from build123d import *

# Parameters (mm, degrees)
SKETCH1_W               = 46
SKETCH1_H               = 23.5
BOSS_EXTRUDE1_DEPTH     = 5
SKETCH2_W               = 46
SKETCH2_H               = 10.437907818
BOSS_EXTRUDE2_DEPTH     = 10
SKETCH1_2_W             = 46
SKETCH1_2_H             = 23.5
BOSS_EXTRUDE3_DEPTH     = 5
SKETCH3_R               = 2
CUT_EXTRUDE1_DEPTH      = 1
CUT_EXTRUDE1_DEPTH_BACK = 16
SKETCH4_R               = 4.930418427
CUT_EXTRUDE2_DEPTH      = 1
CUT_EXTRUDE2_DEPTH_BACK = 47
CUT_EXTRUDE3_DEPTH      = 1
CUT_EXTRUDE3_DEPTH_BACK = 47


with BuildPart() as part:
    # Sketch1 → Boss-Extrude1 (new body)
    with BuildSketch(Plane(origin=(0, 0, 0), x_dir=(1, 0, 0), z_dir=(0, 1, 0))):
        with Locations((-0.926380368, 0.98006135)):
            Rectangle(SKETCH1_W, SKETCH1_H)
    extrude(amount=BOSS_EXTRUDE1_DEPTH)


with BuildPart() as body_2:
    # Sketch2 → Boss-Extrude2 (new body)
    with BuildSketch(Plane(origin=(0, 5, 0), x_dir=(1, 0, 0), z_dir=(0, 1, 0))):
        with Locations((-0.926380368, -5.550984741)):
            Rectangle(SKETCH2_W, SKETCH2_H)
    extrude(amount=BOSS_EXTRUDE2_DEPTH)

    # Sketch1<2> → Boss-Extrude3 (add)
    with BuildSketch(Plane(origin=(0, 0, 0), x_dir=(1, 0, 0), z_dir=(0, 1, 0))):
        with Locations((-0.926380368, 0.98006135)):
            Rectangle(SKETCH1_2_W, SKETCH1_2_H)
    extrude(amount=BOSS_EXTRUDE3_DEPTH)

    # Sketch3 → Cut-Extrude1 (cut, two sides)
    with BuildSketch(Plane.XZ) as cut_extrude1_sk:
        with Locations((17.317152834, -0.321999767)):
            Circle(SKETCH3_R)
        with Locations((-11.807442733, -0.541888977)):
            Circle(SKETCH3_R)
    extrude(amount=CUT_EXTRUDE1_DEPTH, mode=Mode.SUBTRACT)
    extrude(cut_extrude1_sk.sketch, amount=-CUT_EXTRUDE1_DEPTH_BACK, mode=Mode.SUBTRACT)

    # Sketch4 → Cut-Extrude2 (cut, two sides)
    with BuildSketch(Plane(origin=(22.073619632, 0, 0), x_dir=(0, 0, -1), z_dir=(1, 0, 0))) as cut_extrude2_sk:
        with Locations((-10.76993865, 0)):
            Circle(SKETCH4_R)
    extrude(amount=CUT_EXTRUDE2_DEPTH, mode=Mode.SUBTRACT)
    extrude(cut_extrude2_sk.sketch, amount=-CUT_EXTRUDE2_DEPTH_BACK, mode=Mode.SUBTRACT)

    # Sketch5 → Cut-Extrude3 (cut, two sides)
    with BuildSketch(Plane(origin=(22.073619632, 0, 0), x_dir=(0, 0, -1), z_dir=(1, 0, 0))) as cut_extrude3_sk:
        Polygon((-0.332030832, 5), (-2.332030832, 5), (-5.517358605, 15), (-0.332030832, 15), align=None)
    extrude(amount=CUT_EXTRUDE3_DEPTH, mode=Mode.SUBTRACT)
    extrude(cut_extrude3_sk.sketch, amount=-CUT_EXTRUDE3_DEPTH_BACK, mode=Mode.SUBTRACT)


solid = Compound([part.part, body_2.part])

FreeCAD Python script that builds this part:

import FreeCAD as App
import Part
import Sketcher

doc = App.newDocument("Part")
body = doc.addObject("PartDesign::Body", "Body")

sketch1 = body.newObject("Sketcher::SketchObject", "Sketch")
sketch1.AttachmentSupport = (doc.getObject("XZ_Plane"), [""])
sketch1.MapMode = "FlatFace"
sketch1.addGeometry([
    Part.LineSegment(App.Vector(-24, -13, 0), App.Vector(-24, 11, 0)),
    Part.LineSegment(App.Vector(-24, 11, 0), App.Vector(22, 11, 0)),
    Part.LineSegment(App.Vector(22, 11, 0), App.Vector(22, -13, 0)),
    Part.LineSegment(App.Vector(22, -13, 0), App.Vector(-24, -13, 0)),
], False)
sketch1.addConstraint([
    Sketcher.Constraint("Coincident", 0, 2, 1, 1),
    Sketcher.Constraint("Coincident", 1, 2, 2, 1),
    Sketcher.Constraint("Coincident", 2, 2, 3, 1),
    Sketcher.Constraint("Coincident", 3, 2, 0, 1),
    Sketcher.Constraint("Vertical", 0),
    Sketcher.Constraint("Horizontal", 1),
    Sketcher.Constraint("Vertical", 2),
    Sketcher.Constraint("Horizontal", 3),
    Sketcher.Constraint("DistanceX", 1, 1, 1, 2, 46.0),
    Sketcher.Constraint("DistanceY", 0, 1, 0, 2, 23.5),
    Sketcher.Constraint("DistanceX", 0, 2, -1, 1, 23.92638),
    Sketcher.Constraint("DistanceY", -1, 1, 0, 2, 10.769939),
])
pad1 = body.newObject("PartDesign::Pad", "Pad")
pad1.Profile = sketch1
pad1.Length = 5
pad1.Reversed = True
body2 = doc.addObject("PartDesign::Body", "Body001")

sketch2 = body2.newObject("Sketcher::SketchObject", "Sketch001")
sketch2.AttachmentSupport = (doc.getObject("XZ_Plane001"), [""])
sketch2.MapMode = "FlatFace"
sketch2.AttachmentOffset = App.Placement(App.Vector(0, 0, -5), App.Rotation())
sketch2.addGeometry([
    Part.LineSegment(App.Vector(-24, 0, 0), App.Vector(-24, 11, 0)),
    Part.LineSegment(App.Vector(-24, 11, 0), App.Vector(22, 11, 0)),
    Part.LineSegment(App.Vector(22, 11, 0), App.Vector(22, 0, 0)),
    Part.LineSegment(App.Vector(22, 0, 0), App.Vector(-24, 0, 0)),
], False)
sketch2.addConstraint([
    Sketcher.Constraint("Coincident", 0, 2, 1, 1),
    Sketcher.Constraint("Coincident", 1, 2, 2, 1),
    Sketcher.Constraint("Coincident", 2, 2, 3, 1),
    Sketcher.Constraint("Coincident", 3, 2, 0, 1),
    Sketcher.Constraint("Vertical", 0),
    Sketcher.Constraint("Horizontal", 1),
    Sketcher.Constraint("Vertical", 2),
    Sketcher.Constraint("Horizontal", 3),
    Sketcher.Constraint("DistanceX", 1, 1, 1, 2, 46.0),
    Sketcher.Constraint("DistanceY", 0, 1, 0, 2, 10.437908),
    Sketcher.Constraint("DistanceX", 0, 2, -1, 1, 23.92638),
    Sketcher.Constraint("DistanceY", -1, 1, 0, 2, 10.769939),
])
pad2 = body2.newObject("PartDesign::Pad", "Pad001")
pad2.Profile = sketch2
pad2.Length = 10
pad2.Reversed = True

sketch3 = body2.newObject("Sketcher::SketchObject", "Sketch002")
sketch3.AttachmentSupport = (doc.getObject("XZ_Plane001"), [""])
sketch3.MapMode = "FlatFace"
sketch3.addGeometry([
    Part.LineSegment(App.Vector(-24, -13, 0), App.Vector(-24, 11, 0)),
    Part.LineSegment(App.Vector(-24, 11, 0), App.Vector(22, 11, 0)),
    Part.LineSegment(App.Vector(22, 11, 0), App.Vector(22, -13, 0)),
    Part.LineSegment(App.Vector(22, -13, 0), App.Vector(-24, -13, 0)),
], False)
sketch3.addConstraint([
    Sketcher.Constraint("Coincident", 0, 2, 1, 1),
    Sketcher.Constraint("Coincident", 1, 2, 2, 1),
    Sketcher.Constraint("Coincident", 2, 2, 3, 1),
    Sketcher.Constraint("Coincident", 3, 2, 0, 1),
    Sketcher.Constraint("Vertical", 0),
    Sketcher.Constraint("Horizontal", 1),
    Sketcher.Constraint("Vertical", 2),
    Sketcher.Constraint("Horizontal", 3),
    Sketcher.Constraint("DistanceX", 1, 1, 1, 2, 46.0),
    Sketcher.Constraint("DistanceY", 0, 1, 0, 2, 23.5),
    Sketcher.Constraint("DistanceX", 0, 2, -1, 1, 23.92638),
    Sketcher.Constraint("DistanceY", -1, 1, 0, 2, 10.769939),
])
pad3 = body2.newObject("PartDesign::Pad", "Pad002")
pad3.Profile = sketch3
pad3.Length = 5
pad3.Reversed = True

sketch4 = body2.newObject("Sketcher::SketchObject", "Sketch003")
sketch4.AttachmentSupport = (doc.getObject("XZ_Plane001"), [""])
sketch4.MapMode = "FlatFace"
sketch4.addGeometry([
    Part.Circle(App.Vector(17.3, -0.3, 0), App.Vector(0, 0, 1), 2),
    Part.Circle(App.Vector(-11.8, -0.5, 0), App.Vector(0, 0, 1), 2),
], False)
sketch4.addConstraint([
    Sketcher.Constraint("Equal", 0, 1),
    Sketcher.Constraint("Diameter", 0, 4.0),
    Sketcher.Constraint("DistanceY", 0, 3, -1, 1, 0.322),
    Sketcher.Constraint("DistanceY", 1, 3, -1, 1, 0.541889),
    Sketcher.Constraint("DistanceX", -1, 1, 0, 3, 17.317153),
    Sketcher.Constraint("DistanceX", 1, 3, -1, 1, 11.807443),
])
pocket1 = body2.newObject("PartDesign::Pocket", "Pocket")
pocket1.Profile = sketch4
pocket1.Type = "ThroughAll"
pocket1.Midplane = True

sketch5 = body2.newObject("Sketcher::SketchObject", "Sketch004")
sketch5.AttachmentSupport = (doc.getObject("YZ_Plane001"), [""])
sketch5.MapMode = "FlatFace"
sketch5.AttachmentOffset = App.Placement(App.Vector(0, 0, 22.07362), App.Rotation())
sketch5.addGeometry(Part.Circle(App.Vector(0, 10.8, 0), App.Vector(0, 0, 1), 4.9), False)
sketch5.addConstraint([
    Sketcher.Constraint("PointOnObject", 0, 3, -2),
    Sketcher.Constraint("Diameter", 0, 9.860837),
    Sketcher.Constraint("DistanceY", -1, 1, 0, 3, 10.769939),
])
pocket2 = body2.newObject("PartDesign::Pocket", "Pocket001")
pocket2.Profile = sketch5
pocket2.Type = "ThroughAll"
pocket2.Midplane = True

sketch6 = body2.newObject("Sketcher::SketchObject", "Sketch005")
sketch6.AttachmentSupport = (doc.getObject("YZ_Plane001"), [""])
sketch6.MapMode = "FlatFace"
sketch6.AttachmentOffset = App.Placement(App.Vector(0, 0, 22.07362), App.Rotation())
sketch6.addGeometry([
    Part.LineSegment(App.Vector(5, 2.3, 0), App.Vector(5, 0.3, 0)),
    Part.LineSegment(App.Vector(5, 0.3, 0), App.Vector(15, 0.3, 0)),
    Part.LineSegment(App.Vector(15, 0.3, 0), App.Vector(15, 5.5, 0)),
    Part.LineSegment(App.Vector(15, 5.5, 0), App.Vector(5, 2.3, 0)),
], False)
sketch6.addConstraint([
    Sketcher.Constraint("Coincident", 0, 2, 1, 1),
    Sketcher.Constraint("Coincident", 1, 2, 2, 1),
    Sketcher.Constraint("Coincident", 2, 2, 3, 1),
    Sketcher.Constraint("Coincident", 3, 2, 0, 1),
    Sketcher.Constraint("Vertical", 0),
    Sketcher.Constraint("Horizontal", 1),
    Sketcher.Constraint("Vertical", 2),
    Sketcher.Constraint("DistanceX", 1, 1, 1, 2, 10.0),
    Sketcher.Constraint("DistanceY", 0, 2, 0, 1, 2.0),
    Sketcher.Constraint("DistanceX", -1, 1, 0, 2, 5.0),
    Sketcher.Constraint("Distance", 3, 10.495061),
    Sketcher.Constraint("DistanceY", -1, 1, 0, 2, 0.332031),
])
pocket3 = body2.newObject("PartDesign::Pocket", "Pocket002")
pocket3.Profile = sketch6
pocket3.Type = "ThroughAll"
pocket3.Midplane = True

doc.recompute()
